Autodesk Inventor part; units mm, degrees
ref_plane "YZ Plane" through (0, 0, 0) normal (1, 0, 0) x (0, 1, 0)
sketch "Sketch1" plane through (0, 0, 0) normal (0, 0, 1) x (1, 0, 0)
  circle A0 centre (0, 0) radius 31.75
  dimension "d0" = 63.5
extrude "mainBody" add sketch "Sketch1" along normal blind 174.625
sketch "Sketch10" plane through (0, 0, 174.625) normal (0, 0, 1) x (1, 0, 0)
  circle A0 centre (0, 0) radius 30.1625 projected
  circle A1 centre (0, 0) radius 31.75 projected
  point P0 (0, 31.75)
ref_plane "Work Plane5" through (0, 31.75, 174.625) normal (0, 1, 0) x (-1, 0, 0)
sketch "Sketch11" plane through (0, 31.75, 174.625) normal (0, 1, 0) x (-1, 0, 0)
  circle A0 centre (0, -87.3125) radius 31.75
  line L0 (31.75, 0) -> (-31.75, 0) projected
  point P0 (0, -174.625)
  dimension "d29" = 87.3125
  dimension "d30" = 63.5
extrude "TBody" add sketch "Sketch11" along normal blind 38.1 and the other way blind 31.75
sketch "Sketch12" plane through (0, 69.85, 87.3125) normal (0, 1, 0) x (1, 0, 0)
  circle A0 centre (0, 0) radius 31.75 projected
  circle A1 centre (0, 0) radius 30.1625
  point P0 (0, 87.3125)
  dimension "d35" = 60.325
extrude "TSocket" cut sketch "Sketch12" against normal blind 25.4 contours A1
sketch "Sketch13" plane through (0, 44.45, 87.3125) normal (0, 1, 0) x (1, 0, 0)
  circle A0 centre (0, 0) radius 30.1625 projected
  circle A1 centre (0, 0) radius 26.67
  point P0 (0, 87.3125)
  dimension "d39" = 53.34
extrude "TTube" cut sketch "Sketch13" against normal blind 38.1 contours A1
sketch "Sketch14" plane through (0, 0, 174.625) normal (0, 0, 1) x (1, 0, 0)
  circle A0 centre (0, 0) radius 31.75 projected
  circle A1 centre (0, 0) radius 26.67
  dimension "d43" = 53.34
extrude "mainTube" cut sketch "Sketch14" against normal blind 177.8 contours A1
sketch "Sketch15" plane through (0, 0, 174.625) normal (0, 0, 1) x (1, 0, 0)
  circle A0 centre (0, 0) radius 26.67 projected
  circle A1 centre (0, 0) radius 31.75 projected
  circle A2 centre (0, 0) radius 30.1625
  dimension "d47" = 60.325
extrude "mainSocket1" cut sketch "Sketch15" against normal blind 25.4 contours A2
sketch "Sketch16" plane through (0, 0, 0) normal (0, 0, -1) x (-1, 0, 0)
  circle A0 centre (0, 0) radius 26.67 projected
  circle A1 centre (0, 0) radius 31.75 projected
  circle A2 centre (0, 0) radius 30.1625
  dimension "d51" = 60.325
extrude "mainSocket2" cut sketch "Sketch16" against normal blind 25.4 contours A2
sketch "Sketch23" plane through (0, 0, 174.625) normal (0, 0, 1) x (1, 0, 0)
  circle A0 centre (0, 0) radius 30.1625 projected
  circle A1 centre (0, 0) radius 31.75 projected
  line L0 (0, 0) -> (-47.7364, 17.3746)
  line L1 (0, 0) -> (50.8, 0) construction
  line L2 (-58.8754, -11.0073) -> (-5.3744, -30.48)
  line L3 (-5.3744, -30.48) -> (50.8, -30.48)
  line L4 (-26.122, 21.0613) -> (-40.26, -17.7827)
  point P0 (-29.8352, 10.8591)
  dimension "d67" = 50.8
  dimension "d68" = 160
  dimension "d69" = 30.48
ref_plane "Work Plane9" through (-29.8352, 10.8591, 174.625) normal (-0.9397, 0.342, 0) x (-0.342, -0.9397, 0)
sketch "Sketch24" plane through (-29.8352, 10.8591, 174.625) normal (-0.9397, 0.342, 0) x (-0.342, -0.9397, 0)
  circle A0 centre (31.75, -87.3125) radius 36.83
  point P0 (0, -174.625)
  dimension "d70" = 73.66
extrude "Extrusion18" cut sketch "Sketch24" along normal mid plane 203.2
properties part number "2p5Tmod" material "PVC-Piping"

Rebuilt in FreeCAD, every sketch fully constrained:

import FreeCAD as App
import Part
import Sketcher

V = App.Vector
Q = App.Units.Quantity

doc = App.newDocument("Part")
body = doc.addObject("PartDesign::Body", "Body")

sketch1 = doc.addObject("Sketcher::SketchObject", "Sketch")
body.addObject(sketch1)
sketch1.AttachmentSupport = (doc.XY_Plane, [""])
sketch1.MapMode = "FlatFace"
sketch1.addGeometry(Part.Circle(V(0, 0, 0), V(0, 0, 1), 32), False)
sketch1.addConstraint([
    Sketcher.Constraint("Coincident", 0, 3, -1, 1),
    Sketcher.Constraint("Diameter", 0, Q("2.5 in")),
])
pad1 = doc.addObject("PartDesign::Pad", "Pad")
body.addObject(pad1)
pad1.Profile = sketch1
pad1.Length = Q("6.875 in")

sketch2 = doc.addObject("Sketcher::SketchObject", "Sketch001")
body.addObject(sketch2)
sketch2.AttachmentSupport = (doc.XZ_Plane, [""])
sketch2.MapMode = "FlatFace"
sketch2.AttachmentOffset = App.Placement(V(0, 0, -1.25 * 25.4), App.Rotation())
sketch2.addGeometry(Part.Circle(V(0, 87, 0), V(0, 0, 1), 32), False)
sketch2.addConstraint([
    Sketcher.Constraint("PointOnObject", 0, 3, -2),
    Sketcher.Constraint("Diameter", 0, Q("2.5 in")),
    Sketcher.Constraint("DistanceY", -1, 1, 0, 3, Q("3.4375 in")),
])
pad2 = doc.addObject("PartDesign::Pad", "Pad001")
body.addObject(pad2)
pad2.Profile = sketch2
pad2.Type = "TwoLengths"
pad2.Length = Q("1.5 in")
pad2.Length2 = Q("1.25 in")
pad2.Reversed = True

sketch3 = doc.addObject("Sketcher::SketchObject", "Sketch002")
body.addObject(sketch3)
sketch3.AttachmentSupport = (doc.XZ_Plane, [""])
sketch3.MapMode = "FlatFace"
sketch3.AttachmentOffset = App.Placement(V(0, 0, -2.75 * 25.4), App.Rotation())
sketch3.addGeometry(Part.Circle(V(0, 87, 0), V(0, 0, 1), 30), False)
sketch3.addConstraint([
    Sketcher.Constraint("PointOnObject", 0, 3, -2),
    Sketcher.Constraint("Diameter", 0, Q("2.375 in")),
    Sketcher.Constraint("DistanceY", -1, 1, 0, 3, Q("3.4375 in")),
])
pocket1 = doc.addObject("PartDesign::Pocket", "Pocket")
body.addObject(pocket1)
pocket1.Profile = sketch3
pocket1.Length = Q("1 in")
pocket1.Reversed = True

sketch4 = doc.addObject("Sketcher::SketchObject", "Sketch003")
body.addObject(sketch4)
sketch4.AttachmentSupport = (doc.XZ_Plane, [""])
sketch4.MapMode = "FlatFace"
sketch4.AttachmentOffset = App.Placement(V(0, 0, -1.75 * 25.4), App.Rotation())
sketch4.addGeometry(Part.Circle(V(0, 87, 0), V(0, 0, 1), 27), False)
sketch4.addConstraint([
    Sketcher.Constraint("PointOnObject", 0, 3, -2),
    Sketcher.Constraint("Diameter", 0, Q("2.1 in")),
    Sketcher.Constraint("DistanceY", -1, 1, 0, 3, Q("3.4375 in")),
])
pocket2 = doc.addObject("PartDesign::Pocket", "Pocket001")
body.addObject(pocket2)
pocket2.Profile = sketch4
pocket2.Length = Q("1.5 in")
pocket2.Reversed = True

sketch5 = doc.addObject("Sketcher::SketchObject", "Sketch004")
body.addObject(sketch5)
sketch5.AttachmentSupport = (doc.XY_Plane, [""])
sketch5.MapMode = "FlatFace"
sketch5.AttachmentOffset = App.Placement(V(0, 0, 6.875 * 25.4), App.Rotation())
sketch5.addGeometry(Part.Circle(V(0, 0, 0), V(0, 0, 1), 27), False)
sketch5.addConstraint([
    Sketcher.Constraint("Coincident", 0, 3, -1, 1),
    Sketcher.Constraint("Diameter", 0, Q("2.1 in")),
])
pocket3 = doc.addObject("PartDesign::Pocket", "Pocket002")
body.addObject(pocket3)
pocket3.Profile = sketch5
pocket3.Length = Q("7 in")

sketch6 = doc.addObject("Sketcher::SketchObject", "Sketch005")
body.addObject(sketch6)
sketch6.AttachmentSupport = (doc.XY_Plane, [""])
sketch6.MapMode = "FlatFace"
sketch6.AttachmentOffset = App.Placement(V(0, 0, 6.875 * 25.4), App.Rotation())
sketch6.addGeometry([
    Part.Circle(V(0, 0, 0), V(0, 0, 1), 30),
    Part.Circle(V(0, 0, 0), V(0, 0, 1), 27),
], False)
sketch6.addConstraint([
    Sketcher.Constraint("Coincident", 0, 3, -1, 1),
    Sketcher.Constraint("Coincident", 1, 3, -1, 1),
    Sketcher.Constraint("Diameter", 0, Q("2.375 in")),
    Sketcher.Constraint("Diameter", 1, Q("2.1 in")),
])
pocket4 = doc.addObject("PartDesign::Pocket", "Pocket003")
body.addObject(pocket4)
pocket4.Profile = sketch6
pocket4.Length = Q("1 in")

sketch7 = doc.addObject("Sketcher::SketchObject", "Sketch006")
body.addObject(sketch7)
sketch7.AttachmentSupport = (doc.XY_Plane, [""])
sketch7.MapMode = "FlatFace"
sketch7.addGeometry([
    Part.Circle(V(0, 0, 0), V(0, 0, 1), 30),
    Part.Circle(V(0, 0, 0), V(0, 0, 1), 27),
], False)
sketch7.addConstraint([
    Sketcher.Constraint("Coincident", 0, 3, -1, 1),
    Sketcher.Constraint("Coincident", 1, 3, -1, 1),
    Sketcher.Constraint("Diameter", 0, Q("2.375 in")),
    Sketcher.Constraint("Diameter", 1, Q("2.1 in")),
])
pocket5 = doc.addObject("PartDesign::Pocket", "Pocket004")
body.addObject(pocket5)
pocket5.Profile = sketch7
pocket5.Length = Q("1 in")
pocket5.Reversed = True

sketch8 = doc.addObject("Sketcher::SketchObject", "Sketch007")
body.addObject(sketch8)
sketch8.Placement = App.Placement(V(-29.8352, 10.8591, 174.625), App.Rotation(V(-0.342020143, -0.939692621, 0), V(0, 0, 1), V(-0.939692621, 0.342020143, 0), "ZXY"))
sketch8.addGeometry(Part.Circle(V(32, -87, 0), V(0, 0, 1), 37), False)
sketch8.addConstraint([
    Sketcher.Constraint("Diameter", 0, Q("2.9 in")),
    Sketcher.Constraint("DistanceX", -1, 1, 0, 3, Q("1.25 in")),
    Sketcher.Constraint("DistanceY", 0, 3, -1, 1, Q("3.4375 in")),
])
pocket6 = doc.addObject("PartDesign::Pocket", "Pocket005")
body.addObject(pocket6)
pocket6.Profile = sketch8
pocket6.Length = Q("8 in")
pocket6.Midplane = True

doc.recompute()
